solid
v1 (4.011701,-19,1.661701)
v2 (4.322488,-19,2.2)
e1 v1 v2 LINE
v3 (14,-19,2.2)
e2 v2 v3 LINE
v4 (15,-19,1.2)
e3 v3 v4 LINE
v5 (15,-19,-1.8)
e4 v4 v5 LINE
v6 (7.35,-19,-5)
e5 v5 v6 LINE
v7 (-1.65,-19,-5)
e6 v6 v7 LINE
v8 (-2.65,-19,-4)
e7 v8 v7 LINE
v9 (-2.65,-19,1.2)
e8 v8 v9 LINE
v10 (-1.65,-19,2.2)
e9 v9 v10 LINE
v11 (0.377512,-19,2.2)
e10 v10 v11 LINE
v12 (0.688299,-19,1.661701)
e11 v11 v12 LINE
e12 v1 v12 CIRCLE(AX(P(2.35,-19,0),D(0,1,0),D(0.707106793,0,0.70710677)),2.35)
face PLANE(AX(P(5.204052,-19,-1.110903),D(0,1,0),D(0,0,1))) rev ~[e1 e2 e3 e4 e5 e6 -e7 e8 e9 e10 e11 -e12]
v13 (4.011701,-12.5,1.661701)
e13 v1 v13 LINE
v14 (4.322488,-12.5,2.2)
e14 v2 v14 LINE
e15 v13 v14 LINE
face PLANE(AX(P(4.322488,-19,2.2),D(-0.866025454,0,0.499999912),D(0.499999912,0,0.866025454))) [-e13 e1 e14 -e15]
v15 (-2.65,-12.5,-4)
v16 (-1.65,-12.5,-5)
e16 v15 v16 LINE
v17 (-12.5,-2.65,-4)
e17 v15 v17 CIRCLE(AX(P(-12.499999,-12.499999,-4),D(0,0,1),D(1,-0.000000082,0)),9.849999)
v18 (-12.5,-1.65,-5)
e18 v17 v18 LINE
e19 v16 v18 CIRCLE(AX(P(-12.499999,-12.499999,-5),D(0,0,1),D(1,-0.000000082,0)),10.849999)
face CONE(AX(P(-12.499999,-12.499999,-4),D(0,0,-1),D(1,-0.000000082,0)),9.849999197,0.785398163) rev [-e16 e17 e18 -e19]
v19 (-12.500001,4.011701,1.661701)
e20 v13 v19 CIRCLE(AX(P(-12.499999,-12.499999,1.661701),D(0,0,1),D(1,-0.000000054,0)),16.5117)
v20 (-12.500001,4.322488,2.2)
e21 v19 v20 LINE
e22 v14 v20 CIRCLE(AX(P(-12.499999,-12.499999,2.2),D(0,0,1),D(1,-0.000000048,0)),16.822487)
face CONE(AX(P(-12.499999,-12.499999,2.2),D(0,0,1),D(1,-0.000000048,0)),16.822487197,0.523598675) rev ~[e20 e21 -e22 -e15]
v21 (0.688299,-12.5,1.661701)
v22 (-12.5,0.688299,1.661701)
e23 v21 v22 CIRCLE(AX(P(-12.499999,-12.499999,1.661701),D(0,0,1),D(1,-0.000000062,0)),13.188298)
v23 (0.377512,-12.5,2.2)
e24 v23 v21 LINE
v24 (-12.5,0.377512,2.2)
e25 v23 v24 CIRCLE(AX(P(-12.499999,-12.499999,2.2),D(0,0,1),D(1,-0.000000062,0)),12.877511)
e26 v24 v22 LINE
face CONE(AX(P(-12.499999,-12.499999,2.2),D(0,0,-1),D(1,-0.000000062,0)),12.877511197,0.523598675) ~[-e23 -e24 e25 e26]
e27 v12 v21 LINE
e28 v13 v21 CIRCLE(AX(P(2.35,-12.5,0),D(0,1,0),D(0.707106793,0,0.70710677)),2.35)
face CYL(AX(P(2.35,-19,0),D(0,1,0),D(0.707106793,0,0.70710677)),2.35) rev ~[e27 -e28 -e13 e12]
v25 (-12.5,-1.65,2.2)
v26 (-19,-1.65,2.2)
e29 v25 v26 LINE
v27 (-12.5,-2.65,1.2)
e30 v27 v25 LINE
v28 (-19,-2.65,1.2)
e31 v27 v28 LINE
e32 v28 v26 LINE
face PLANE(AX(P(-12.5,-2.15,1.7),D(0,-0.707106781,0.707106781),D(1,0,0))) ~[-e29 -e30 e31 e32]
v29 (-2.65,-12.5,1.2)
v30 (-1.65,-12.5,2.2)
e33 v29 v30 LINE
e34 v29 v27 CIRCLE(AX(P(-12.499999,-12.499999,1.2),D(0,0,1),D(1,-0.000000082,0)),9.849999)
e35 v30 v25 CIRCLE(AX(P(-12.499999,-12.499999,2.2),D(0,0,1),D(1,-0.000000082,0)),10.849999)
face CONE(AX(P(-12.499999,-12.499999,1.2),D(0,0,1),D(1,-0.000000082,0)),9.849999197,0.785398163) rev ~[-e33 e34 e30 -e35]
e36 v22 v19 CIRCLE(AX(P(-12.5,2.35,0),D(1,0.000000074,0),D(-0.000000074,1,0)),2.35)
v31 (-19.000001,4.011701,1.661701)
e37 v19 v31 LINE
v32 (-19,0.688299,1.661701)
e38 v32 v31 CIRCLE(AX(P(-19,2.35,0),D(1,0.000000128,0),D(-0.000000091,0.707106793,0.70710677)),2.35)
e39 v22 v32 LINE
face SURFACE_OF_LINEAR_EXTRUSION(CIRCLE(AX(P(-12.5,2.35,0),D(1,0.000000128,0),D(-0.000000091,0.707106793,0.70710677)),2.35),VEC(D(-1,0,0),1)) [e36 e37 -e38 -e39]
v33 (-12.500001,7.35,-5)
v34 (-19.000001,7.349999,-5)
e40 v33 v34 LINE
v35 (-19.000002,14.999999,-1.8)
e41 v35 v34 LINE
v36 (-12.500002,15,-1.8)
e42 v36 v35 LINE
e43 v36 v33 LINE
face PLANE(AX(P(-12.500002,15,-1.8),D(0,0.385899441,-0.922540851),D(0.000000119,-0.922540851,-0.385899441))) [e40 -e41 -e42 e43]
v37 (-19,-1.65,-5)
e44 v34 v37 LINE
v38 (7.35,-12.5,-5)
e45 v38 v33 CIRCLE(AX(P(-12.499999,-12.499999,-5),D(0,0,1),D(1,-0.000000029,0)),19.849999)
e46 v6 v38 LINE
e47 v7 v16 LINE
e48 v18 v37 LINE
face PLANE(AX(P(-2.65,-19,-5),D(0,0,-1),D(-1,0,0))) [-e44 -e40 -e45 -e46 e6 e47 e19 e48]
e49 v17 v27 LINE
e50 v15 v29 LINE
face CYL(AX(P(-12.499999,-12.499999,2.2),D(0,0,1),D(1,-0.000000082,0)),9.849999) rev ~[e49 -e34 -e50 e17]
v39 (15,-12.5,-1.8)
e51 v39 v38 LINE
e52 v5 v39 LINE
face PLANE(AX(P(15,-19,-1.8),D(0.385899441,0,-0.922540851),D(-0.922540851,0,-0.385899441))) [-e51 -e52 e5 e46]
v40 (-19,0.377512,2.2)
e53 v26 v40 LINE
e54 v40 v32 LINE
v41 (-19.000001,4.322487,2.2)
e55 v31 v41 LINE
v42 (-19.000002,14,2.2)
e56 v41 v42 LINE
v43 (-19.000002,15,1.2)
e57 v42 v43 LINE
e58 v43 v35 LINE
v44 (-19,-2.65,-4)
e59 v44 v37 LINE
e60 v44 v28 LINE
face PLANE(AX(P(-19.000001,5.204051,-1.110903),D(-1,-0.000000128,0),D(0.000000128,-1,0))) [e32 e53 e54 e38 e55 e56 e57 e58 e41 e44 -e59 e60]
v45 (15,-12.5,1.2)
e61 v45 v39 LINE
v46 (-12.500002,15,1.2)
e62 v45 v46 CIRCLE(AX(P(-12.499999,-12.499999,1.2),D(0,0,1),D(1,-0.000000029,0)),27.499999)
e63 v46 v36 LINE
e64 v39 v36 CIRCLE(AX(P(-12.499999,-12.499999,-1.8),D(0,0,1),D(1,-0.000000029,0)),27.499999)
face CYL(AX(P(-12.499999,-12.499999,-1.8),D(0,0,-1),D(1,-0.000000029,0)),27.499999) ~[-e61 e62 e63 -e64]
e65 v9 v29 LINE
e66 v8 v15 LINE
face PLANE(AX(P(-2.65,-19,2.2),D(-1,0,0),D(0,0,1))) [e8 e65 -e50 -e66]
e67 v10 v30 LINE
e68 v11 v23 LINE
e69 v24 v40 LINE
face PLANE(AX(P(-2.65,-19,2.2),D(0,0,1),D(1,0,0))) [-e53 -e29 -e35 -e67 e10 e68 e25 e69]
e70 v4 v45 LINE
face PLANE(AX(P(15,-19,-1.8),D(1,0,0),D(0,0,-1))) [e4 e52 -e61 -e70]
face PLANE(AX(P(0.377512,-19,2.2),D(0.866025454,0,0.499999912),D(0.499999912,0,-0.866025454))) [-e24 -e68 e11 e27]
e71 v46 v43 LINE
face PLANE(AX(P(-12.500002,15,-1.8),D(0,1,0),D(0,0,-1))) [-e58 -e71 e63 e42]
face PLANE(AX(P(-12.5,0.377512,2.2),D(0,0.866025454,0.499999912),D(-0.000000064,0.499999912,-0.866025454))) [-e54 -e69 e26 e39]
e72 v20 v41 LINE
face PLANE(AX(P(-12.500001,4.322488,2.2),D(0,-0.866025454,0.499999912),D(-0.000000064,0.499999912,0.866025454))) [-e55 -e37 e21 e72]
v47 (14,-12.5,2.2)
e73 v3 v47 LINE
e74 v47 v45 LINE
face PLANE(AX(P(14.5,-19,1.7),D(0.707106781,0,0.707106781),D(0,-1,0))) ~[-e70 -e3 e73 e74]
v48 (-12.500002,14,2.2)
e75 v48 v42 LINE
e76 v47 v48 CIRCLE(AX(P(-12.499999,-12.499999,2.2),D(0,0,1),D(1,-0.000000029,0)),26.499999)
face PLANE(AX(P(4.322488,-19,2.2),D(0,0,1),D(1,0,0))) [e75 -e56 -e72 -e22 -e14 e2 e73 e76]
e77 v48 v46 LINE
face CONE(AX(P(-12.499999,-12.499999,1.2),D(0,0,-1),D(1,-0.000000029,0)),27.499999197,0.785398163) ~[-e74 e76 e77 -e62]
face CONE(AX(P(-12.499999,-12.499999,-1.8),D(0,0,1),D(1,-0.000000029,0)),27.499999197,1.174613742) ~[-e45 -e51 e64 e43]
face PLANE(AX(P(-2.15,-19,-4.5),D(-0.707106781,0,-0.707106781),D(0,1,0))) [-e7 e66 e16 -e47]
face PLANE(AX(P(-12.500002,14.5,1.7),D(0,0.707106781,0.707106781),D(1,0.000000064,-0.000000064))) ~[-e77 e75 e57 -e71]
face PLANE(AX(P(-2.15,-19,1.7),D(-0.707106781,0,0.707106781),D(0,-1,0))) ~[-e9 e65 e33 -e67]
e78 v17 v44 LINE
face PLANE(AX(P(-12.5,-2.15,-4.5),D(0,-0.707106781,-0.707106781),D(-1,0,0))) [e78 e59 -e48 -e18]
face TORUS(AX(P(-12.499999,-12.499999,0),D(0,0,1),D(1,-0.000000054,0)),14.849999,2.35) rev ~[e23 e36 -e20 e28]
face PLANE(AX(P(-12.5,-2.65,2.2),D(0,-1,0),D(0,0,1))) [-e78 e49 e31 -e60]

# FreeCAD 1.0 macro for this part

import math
import FreeCAD as App
import Part
import Sketcher
from FreeCAD import Vector
Q = App.Units.Quantity


def edges_at(feature, points):
    """Names of the edges that pass closest to the given points."""
    edges = feature.Shape.Edges
    near = lambda p: min(range(len(edges)), key=lambda i: edges[i].distToShape(Part.Vertex(*p))[0])
    return sorted({f"Edge{near(p) + 1}" for p in points})

doc = App.newDocument("Part")
params = doc.addObject("Spreadsheet::Sheet", "Params")
for row, (alias, value) in enumerate([
    ("sketch1_width", "10 mm"),
    ("sketch1_height", "4 mm"),
    ("sketch1_radius", "2.35 mm"),
    ("sketch1_height2", "7.2 mm"),
    ("sketch2_radius", "12.499999 mm"),
    ("sketch2_width", "6.5 mm"),
    ("chamfer_size", "1 mm"),
], start=1):
    params.set(f"A{row}", alias)
    params.set(f"B{row}", "=" + value)
    params.setAlias(f"B{row}", alias)

body = doc.addObject("PartDesign::Body", "Body")

# Sketch on XZ plane
sketch1 = body.newObject("Sketcher::SketchObject", "Sketch")
sketch1.AttachmentSupport = (doc.getObject("XZ_Plane"), [""])
sketch1.MapMode = "FlatFace"
sketch1.AttachmentOffset = App.Placement(Vector(0, 0, 19), App.Rotation())
sketch1.addGeometry([
    Part.LineSegment(Vector(-2.65, -5, 0), Vector(-2.65, 2.2, 0)),  # 0
    Part.LineSegment(Vector(-2.65, 2.2, 0), Vector(0.377512, 2.2, 0)),  # 1
    Part.LineSegment(Vector(0.377512, 2.2, 0), Vector(0.688299, 1.661701, 0)),  # 2
    Part.ArcOfCircle(Part.Circle(Vector(2.35, 0, 0), Vector(0, 0, 1), 2.35), math.radians(135.000001), math.radians(404.999999)),  # 3
    Part.LineSegment(Vector(4.011701, 1.661701, 0), Vector(4.322488, 2.2, 0)),  # 4
    Part.LineSegment(Vector(4.322488, 2.2, 0), Vector(15, 2.2, 0)),  # 5
    Part.LineSegment(Vector(15, 2.2, 0), Vector(15, -1.8, 0)),  # 6
    Part.LineSegment(Vector(15, -1.8, 0), Vector(7.35, -5, 0)),  # 7
    Part.LineSegment(Vector(7.35, -5, 0), Vector(-2.65, -5, 0)),  # 8
], False)
sketch1.addConstraint([
    Sketcher.Constraint("Coincident", 0, 2, 1, 1),
    Sketcher.Constraint("Coincident", 1, 2, 2, 1),
    Sketcher.Constraint("Coincident", 2, 2, 3, 1),
    Sketcher.Constraint("Coincident", 3, 2, 4, 1),
    Sketcher.Constraint("Coincident", 4, 2, 5, 1),
    Sketcher.Constraint("Coincident", 5, 2, 6, 1),
    Sketcher.Constraint("Coincident", 6, 2, 7, 1),
    Sketcher.Constraint("Coincident", 7, 2, 8, 1),
    Sketcher.Constraint("Coincident", 8, 2, 0, 1),
    Sketcher.Constraint("Vertical", 0),
    Sketcher.Constraint("Horizontal", 1),
    Sketcher.Constraint("Horizontal", 5),
    Sketcher.Constraint("Vertical", 6),
    Sketcher.Constraint("Horizontal", 8),
    Sketcher.Constraint("PointOnObject", 3, 3, -1),
    Sketcher.Constraint("Horizontal", 2, 2, 3, 2),
    Sketcher.Constraint("Horizontal", 1, 2, 4, 2),
    Sketcher.Constraint("Equal", 2, 4),
    Sketcher.Constraint("DistanceX", 8, 2, 8, 1, Q("10 mm")),
    Sketcher.Constraint("DistanceY", 6, 2, 6, 1, Q("4 mm")),
    Sketcher.Constraint("Angle", 2, Q("-60.000006 deg")),
    Sketcher.Constraint("Radius", 3, Q("2.35 mm")),
    Sketcher.Constraint("DistanceY", 0, 1, 0, 2, Q("7.2 mm")),
    Sketcher.Constraint("DistanceX", -1, 1, 5, 2, Q("15 mm")),
    Sketcher.Constraint("DistanceY", 7, 2, -1, 1, Q("5 mm")),
    Sketcher.Constraint("DistanceX", 0, 2, 3, 3, Q("5 mm")),
    Sketcher.Constraint("DistanceX", -1, 1, 3, 3, Q("2.35 mm")),
    Sketcher.Constraint("DistanceX", 1, 1, 1, 2, Q("3.027512 mm")),
])
sketch1.setExpression("Constraints[18]", "Params.sketch1_width")
sketch1.setExpression("Constraints[19]", "Params.sketch1_height")
sketch1.setExpression("Constraints[21]", "Params.sketch1_radius")
sketch1.setExpression("Constraints[22]", "Params.sketch1_height2")

# Sketch on XY plane
sketch2 = body.newObject("Sketcher::SketchObject", "Sketch001")
sketch2.AttachmentSupport = (doc.getObject("XY_Plane"), [""])
sketch2.MapMode = "FlatFace"
sketch2.addGeometry([
    Part.LineSegment(Vector(0, -19, 0), Vector(0, -12.5, 0)),
    Part.ArcOfCircle(Part.Circle(Vector(-12.499999, -12.499999, 0), Vector(0, 0, 1), 12.499999), math.radians(-0.000004), math.radians(90.000004)),
    Part.LineSegment(Vector(-12.5, 0, 0), Vector(-19, 0, 0)),
], False)
sketch2.addConstraint([
    Sketcher.Constraint("Tangent", 0, 2, 1, 1),
    Sketcher.Constraint("Tangent", 1, 2, 2, 1),
    Sketcher.Constraint("Vertical", 0),
    Sketcher.Constraint("Horizontal", 2),
    Sketcher.Constraint("PointOnObject", 0, 1, -2),
    Sketcher.Constraint("PointOnObject", 1, 2, -1),
    Sketcher.Constraint("Equal", 2, 0),
    Sketcher.Constraint("Radius", 1, Q("12.499999 mm")),
    Sketcher.Constraint("DistanceX", 2, 2, 2, 1, Q("6.5 mm")),
])
sketch2.setExpression("Constraints[7]", "Params.sketch2_radius")
sketch2.setExpression("Constraints[8]", "Params.sketch2_width")
doc.recompute()

additivepipe = body.newObject("PartDesign::AdditivePipe", "AdditivePipe")
additivepipe.Profile = sketch1
additivepipe.Spine = (sketch2, ["Edge1", "Edge2", "Edge3"])
doc.recompute()

chamfer = body.newObject("PartDesign::Chamfer", "Chamfer")
chamfer.Base = (additivepipe, edges_at(additivepipe, [(-2.65, -15.75, -5), (-2.65, -15.75, 2.2), (15, -15.75, 2.2)]))
chamfer.setExpression("Size", "Params.chamfer_size")

doc.recompute()
